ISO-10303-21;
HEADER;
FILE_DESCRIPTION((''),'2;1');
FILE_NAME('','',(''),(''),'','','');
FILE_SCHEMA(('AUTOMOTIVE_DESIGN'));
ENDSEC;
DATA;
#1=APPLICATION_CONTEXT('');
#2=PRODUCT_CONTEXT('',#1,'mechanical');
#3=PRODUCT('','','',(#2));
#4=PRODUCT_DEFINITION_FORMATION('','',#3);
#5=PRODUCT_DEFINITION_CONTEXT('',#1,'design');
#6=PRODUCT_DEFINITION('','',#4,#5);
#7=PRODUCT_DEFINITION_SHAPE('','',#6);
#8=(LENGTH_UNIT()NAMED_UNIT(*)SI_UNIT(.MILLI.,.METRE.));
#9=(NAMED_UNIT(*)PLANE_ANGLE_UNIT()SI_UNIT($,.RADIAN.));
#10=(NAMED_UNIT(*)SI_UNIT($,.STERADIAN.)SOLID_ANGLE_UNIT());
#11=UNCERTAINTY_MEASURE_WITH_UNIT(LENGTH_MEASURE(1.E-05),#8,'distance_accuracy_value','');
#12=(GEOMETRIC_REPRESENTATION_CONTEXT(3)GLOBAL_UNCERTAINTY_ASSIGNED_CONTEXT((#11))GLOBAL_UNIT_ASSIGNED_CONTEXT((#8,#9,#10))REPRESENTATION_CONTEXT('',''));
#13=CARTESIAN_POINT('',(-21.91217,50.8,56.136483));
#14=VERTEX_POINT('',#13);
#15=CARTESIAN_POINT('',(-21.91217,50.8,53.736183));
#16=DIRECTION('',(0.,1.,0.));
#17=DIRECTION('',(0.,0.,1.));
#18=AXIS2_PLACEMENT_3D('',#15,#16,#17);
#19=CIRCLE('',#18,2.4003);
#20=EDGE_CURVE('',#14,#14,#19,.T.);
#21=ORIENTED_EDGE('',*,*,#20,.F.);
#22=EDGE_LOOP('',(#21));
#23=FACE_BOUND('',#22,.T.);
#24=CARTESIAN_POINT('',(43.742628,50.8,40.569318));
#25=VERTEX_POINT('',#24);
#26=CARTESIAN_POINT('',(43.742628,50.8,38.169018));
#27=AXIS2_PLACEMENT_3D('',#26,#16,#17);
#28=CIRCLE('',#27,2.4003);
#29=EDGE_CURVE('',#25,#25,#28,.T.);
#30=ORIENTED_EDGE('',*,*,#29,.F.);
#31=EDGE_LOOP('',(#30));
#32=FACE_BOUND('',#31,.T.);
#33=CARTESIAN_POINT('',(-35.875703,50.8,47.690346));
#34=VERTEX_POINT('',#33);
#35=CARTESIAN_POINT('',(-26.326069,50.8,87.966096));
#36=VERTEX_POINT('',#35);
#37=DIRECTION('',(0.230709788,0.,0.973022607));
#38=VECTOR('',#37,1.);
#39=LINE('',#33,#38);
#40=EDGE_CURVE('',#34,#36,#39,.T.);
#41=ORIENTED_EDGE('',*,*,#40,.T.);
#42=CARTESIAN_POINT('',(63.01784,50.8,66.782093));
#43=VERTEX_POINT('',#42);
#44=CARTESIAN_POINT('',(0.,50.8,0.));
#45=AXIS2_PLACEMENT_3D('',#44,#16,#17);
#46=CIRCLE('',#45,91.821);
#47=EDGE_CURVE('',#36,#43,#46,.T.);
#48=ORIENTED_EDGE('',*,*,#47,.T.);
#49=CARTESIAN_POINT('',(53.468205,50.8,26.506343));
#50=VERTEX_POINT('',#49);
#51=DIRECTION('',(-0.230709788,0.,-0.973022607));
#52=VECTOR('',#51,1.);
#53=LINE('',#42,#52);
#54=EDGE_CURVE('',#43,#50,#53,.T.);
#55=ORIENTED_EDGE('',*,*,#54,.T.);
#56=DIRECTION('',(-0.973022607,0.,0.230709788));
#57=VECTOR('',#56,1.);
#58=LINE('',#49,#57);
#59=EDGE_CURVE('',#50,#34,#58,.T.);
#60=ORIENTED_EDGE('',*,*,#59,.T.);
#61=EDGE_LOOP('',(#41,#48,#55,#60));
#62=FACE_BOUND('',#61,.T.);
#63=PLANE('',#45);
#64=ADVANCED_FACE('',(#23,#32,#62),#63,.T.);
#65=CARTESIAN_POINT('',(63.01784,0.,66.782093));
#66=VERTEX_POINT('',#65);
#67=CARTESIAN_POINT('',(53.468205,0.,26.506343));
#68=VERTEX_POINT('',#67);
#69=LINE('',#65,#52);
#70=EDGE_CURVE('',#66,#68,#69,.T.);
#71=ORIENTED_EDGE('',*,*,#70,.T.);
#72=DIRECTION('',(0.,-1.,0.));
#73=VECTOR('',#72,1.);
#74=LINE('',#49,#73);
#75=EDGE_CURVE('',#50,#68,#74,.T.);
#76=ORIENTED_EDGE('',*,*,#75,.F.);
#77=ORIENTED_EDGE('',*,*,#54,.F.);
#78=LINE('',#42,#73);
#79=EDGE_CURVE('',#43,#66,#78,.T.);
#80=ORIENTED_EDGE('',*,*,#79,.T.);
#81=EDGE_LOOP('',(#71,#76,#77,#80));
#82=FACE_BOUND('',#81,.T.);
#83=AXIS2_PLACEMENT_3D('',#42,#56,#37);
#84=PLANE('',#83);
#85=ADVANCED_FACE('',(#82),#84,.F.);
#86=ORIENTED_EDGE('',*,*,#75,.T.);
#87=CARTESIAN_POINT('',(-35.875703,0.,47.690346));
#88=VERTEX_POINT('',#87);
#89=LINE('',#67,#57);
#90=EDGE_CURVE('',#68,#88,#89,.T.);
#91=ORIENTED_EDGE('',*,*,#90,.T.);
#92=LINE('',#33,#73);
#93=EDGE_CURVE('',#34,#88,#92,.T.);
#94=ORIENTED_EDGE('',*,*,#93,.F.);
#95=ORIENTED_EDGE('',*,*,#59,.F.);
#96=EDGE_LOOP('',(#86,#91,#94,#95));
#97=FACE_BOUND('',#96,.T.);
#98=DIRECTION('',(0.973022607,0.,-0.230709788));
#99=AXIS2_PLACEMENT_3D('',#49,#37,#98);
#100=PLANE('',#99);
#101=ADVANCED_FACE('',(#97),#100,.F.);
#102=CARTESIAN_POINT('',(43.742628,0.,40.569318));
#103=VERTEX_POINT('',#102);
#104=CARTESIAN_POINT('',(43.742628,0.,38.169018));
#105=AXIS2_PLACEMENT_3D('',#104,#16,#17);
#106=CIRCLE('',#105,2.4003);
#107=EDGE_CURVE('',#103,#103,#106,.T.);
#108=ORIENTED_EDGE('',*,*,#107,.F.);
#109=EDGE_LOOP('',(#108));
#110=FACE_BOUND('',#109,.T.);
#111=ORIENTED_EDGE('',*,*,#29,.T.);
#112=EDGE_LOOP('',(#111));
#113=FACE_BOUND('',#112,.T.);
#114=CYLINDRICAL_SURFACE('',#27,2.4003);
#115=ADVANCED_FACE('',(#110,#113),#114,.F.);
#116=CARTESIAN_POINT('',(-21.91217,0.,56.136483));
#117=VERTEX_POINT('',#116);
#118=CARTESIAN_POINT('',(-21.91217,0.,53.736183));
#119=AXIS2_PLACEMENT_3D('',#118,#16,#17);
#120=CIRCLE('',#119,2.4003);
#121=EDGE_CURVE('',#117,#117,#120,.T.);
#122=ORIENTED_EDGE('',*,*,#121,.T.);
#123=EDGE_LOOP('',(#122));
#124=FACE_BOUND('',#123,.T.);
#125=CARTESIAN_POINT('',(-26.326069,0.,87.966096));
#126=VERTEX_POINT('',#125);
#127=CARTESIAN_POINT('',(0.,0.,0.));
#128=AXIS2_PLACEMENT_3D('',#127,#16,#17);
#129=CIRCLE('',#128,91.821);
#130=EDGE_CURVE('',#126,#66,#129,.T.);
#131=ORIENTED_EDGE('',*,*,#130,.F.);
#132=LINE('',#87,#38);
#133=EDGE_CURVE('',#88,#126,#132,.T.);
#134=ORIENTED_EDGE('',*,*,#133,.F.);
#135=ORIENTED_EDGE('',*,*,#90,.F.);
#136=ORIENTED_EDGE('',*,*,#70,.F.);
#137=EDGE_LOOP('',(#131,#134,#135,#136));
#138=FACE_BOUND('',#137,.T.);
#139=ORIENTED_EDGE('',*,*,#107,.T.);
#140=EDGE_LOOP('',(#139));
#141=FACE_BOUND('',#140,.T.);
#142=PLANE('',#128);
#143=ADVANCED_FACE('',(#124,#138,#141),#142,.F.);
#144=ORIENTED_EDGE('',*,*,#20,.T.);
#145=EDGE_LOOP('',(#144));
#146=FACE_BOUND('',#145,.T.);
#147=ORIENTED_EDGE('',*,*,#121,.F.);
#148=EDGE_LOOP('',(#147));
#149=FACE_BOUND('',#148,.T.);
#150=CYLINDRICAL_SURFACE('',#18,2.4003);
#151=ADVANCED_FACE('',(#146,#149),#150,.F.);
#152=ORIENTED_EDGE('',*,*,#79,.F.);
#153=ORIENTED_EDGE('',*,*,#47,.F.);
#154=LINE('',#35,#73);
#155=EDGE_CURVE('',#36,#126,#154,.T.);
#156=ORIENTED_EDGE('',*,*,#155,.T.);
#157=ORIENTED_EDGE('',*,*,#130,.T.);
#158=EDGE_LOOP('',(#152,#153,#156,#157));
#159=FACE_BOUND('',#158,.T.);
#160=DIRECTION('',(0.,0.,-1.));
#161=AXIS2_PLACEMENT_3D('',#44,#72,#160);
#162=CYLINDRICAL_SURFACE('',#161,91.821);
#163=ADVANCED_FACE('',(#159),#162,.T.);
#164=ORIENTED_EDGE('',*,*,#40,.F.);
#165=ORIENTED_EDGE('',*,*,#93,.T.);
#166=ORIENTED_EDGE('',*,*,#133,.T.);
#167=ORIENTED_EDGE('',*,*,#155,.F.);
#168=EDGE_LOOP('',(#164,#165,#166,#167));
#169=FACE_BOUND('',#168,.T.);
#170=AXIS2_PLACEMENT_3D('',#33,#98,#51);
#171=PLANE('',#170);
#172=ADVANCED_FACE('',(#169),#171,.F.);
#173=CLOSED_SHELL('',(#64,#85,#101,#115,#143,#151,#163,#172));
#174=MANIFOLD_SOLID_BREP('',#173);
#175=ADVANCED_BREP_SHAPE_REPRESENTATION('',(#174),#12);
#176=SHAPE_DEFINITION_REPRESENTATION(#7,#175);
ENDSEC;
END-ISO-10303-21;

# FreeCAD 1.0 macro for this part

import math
import FreeCAD as App
import Part
import Sketcher
from FreeCAD import Vector
Q = App.Units.Quantity

doc = App.newDocument("Part")
body = doc.addObject("PartDesign::Body", "Body")

sketch1 = body.newObject("Sketcher::SketchObject", "Sketch")
sketch1.AttachmentSupport = (doc.getObject("XZ_Plane"), [""])
sketch1.MapMode = "FlatFace"
sketch1.addGeometry([
    Part.LineSegment(Vector(63, 67, 0), Vector(53, 27, 0)),
    Part.LineSegment(Vector(53, 27, 0), Vector(-36, 48, 0)),
    Part.LineSegment(Vector(-36, 48, 0), Vector(-26, 88, 0)),
    Part.ArcOfCircle(Part.Circle(Vector(0, 0, 0), Vector(0, 0, 1), 92), math.radians(47), math.radians(107)),
], False)
sketch1.addConstraint([
    Sketcher.Constraint("Coincident", 0, 2, 1, 1),
    Sketcher.Constraint("Coincident", 1, 2, 2, 1),
    Sketcher.Constraint("Coincident", 2, 2, 3, 2),
    Sketcher.Constraint("Coincident", 3, 1, 0, 1),
    Sketcher.Constraint("Coincident", 3, 3, -1, 1),
    Sketcher.Constraint("Perpendicular", 0, 1),
    Sketcher.Constraint("Perpendicular", 1, 2),
    Sketcher.Constraint("Equal", 0, 2),
    Sketcher.Constraint("Radius", 3, Q("3.615 in")),
    Sketcher.Constraint("Distance", 1, Q("3.615 in")),
    Sketcher.Constraint("Distance", 0, Q("41.39241 mm")),
    Sketcher.Constraint("DistanceX", 2, 2, -1, 1, Q("26.326069 mm")),
])
pad1 = body.newObject("PartDesign::Pad", "Pad")
pad1.Profile = sketch1
pad1.Length = Q("2 in")
pad1.Reversed = True

sketch2 = body.newObject("Sketcher::SketchObject", "Sketch001")
sketch2.AttachmentSupport = (doc.getObject("XZ_Plane"), [""])
sketch2.MapMode = "FlatFace"
sketch2.AttachmentOffset = App.Placement(Vector(0, 0, -2 * 25.4), App.Rotation())
sketch2.addGeometry([
    Part.Circle(Vector(-21.9, 53.7, 0), Vector(0, 0, 1), 2.4),
    Part.Circle(Vector(43.7, 38.2, 0), Vector(0, 0, 1), 2.4),
], False)
sketch2.addConstraint([
    Sketcher.Constraint("Equal", 0, 1),
    Sketcher.Constraint("Diameter", 0, Q("0.189 in")),
    Sketcher.Constraint("DistanceX", 0, 3, -1, 1, Q("21.91217 mm")),
    Sketcher.Constraint("DistanceY", -1, 1, 0, 3, Q("53.736183 mm")),
    Sketcher.Constraint("DistanceX", -1, 1, 1, 3, Q("43.742628 mm")),
    Sketcher.Constraint("DistanceY", -1, 1, 1, 3, Q("38.169018 mm")),
])
doc.recompute()
hole = body.newObject("PartDesign::Hole", "Hole")
hole.Profile = sketch2
hole.ThreadType = "None"
hole.Diameter = Q("0.189 in")
hole.DepthType = "ThroughAll"
hole.Reversed = True

doc.recompute()
